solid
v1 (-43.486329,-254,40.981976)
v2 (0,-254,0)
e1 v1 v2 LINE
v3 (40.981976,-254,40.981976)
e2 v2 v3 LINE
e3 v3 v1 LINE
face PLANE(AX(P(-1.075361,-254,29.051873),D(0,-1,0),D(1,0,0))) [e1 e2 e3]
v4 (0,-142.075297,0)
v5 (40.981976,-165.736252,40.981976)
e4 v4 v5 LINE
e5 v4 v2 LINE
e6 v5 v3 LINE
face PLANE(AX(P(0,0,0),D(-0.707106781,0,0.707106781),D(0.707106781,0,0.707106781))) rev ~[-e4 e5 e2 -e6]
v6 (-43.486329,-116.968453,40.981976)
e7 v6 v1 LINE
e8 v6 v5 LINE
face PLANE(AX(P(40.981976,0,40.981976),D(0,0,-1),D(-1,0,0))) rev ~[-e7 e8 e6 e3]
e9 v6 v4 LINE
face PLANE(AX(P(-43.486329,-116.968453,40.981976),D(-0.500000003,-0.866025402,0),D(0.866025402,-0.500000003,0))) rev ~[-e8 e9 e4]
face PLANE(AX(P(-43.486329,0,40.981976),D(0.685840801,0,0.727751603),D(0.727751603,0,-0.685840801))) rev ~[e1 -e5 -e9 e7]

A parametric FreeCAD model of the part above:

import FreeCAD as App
import Part
import Sketcher
Q = App.Units.Quantity


def add_polygon(sketch, points):
    """Adds a closed chain of lines whose ends are joined by coincident constraints."""
    first, n = sketch.GeometryCount, len(points)
    for a, b in zip(points, points[1:] + points[:1]):
        sketch.addGeometry(Part.LineSegment(App.Vector(*a, 0), App.Vector(*b, 0)), False)
    for i in range(n):
        sketch.addConstraint(Sketcher.Constraint("Coincident", first + i, 2, first + (i + 1) % n, 1))

doc = App.newDocument("Part")
body = doc.addObject("PartDesign::Body", "Body")

# Sketch on XZ plane
sketch1 = body.newObject("Sketcher::SketchObject", "Sketch")
sketch1.AttachmentSupport = (doc.getObject("XZ_Plane"), [""])
sketch1.MapMode = "FlatFace"
add_polygon(sketch1, [(-43.486329, 40.981976), (0, 0), (40.981976, 40.981976)])  # lines 0-2
sketch1.addConstraint([
    Sketcher.Constraint("Horizontal", 2),
    Sketcher.Constraint("Coincident", 0, 2, -1, 1),
    Sketcher.Constraint("Angle", 1, Q("45 deg")),
    Sketcher.Constraint("DistanceX", 2, 2, 2, 1, 84.468305),
    Sketcher.Constraint("DistanceX", 2, 2, -1, 1, 43.486329),
])
pad1 = body.newObject("PartDesign::Pad", "Pad")
pad1.Profile = sketch1
pad1.Length = Q("10 in")

# Sketch on XY plane
sketch2 = body.newObject("Sketcher::SketchObject", "Sketch001")
sketch2.AttachmentSupport = (doc.getObject("XY_Plane"), [""])
sketch2.MapMode = "FlatFace"
sketch2.AttachmentOffset = App.Placement(App.Vector(0, 0, 40.981976), App.Rotation())
add_polygon(sketch2, [(-43.486329, 0), (-43.486329, -116.968453), (40.981976, -165.736252), (40.981976, 0)])  # lines 0-3
sketch2.addConstraint([
    Sketcher.Constraint("Vertical", 0),
    Sketcher.Constraint("Vertical", 2),
    Sketcher.Constraint("Horizontal", 3),
    Sketcher.Constraint("PointOnObject", 2, 2, -1),
    Sketcher.Constraint("Angle", 1, Q("-30 deg")),
    Sketcher.Constraint("DistanceY", 2, 1, 2, 2, 165.736252),
    Sketcher.Constraint("DistanceY", 1, 2, 0, 2, 48.767799),
    Sketcher.Constraint("DistanceX", 0, 2, -1, 1, 43.486329),
])
pocket1 = body.newObject("PartDesign::Pocket", "Pocket")
pocket1.Profile = sketch2
pocket1.Type = "ThroughAll"

doc.recompute()
